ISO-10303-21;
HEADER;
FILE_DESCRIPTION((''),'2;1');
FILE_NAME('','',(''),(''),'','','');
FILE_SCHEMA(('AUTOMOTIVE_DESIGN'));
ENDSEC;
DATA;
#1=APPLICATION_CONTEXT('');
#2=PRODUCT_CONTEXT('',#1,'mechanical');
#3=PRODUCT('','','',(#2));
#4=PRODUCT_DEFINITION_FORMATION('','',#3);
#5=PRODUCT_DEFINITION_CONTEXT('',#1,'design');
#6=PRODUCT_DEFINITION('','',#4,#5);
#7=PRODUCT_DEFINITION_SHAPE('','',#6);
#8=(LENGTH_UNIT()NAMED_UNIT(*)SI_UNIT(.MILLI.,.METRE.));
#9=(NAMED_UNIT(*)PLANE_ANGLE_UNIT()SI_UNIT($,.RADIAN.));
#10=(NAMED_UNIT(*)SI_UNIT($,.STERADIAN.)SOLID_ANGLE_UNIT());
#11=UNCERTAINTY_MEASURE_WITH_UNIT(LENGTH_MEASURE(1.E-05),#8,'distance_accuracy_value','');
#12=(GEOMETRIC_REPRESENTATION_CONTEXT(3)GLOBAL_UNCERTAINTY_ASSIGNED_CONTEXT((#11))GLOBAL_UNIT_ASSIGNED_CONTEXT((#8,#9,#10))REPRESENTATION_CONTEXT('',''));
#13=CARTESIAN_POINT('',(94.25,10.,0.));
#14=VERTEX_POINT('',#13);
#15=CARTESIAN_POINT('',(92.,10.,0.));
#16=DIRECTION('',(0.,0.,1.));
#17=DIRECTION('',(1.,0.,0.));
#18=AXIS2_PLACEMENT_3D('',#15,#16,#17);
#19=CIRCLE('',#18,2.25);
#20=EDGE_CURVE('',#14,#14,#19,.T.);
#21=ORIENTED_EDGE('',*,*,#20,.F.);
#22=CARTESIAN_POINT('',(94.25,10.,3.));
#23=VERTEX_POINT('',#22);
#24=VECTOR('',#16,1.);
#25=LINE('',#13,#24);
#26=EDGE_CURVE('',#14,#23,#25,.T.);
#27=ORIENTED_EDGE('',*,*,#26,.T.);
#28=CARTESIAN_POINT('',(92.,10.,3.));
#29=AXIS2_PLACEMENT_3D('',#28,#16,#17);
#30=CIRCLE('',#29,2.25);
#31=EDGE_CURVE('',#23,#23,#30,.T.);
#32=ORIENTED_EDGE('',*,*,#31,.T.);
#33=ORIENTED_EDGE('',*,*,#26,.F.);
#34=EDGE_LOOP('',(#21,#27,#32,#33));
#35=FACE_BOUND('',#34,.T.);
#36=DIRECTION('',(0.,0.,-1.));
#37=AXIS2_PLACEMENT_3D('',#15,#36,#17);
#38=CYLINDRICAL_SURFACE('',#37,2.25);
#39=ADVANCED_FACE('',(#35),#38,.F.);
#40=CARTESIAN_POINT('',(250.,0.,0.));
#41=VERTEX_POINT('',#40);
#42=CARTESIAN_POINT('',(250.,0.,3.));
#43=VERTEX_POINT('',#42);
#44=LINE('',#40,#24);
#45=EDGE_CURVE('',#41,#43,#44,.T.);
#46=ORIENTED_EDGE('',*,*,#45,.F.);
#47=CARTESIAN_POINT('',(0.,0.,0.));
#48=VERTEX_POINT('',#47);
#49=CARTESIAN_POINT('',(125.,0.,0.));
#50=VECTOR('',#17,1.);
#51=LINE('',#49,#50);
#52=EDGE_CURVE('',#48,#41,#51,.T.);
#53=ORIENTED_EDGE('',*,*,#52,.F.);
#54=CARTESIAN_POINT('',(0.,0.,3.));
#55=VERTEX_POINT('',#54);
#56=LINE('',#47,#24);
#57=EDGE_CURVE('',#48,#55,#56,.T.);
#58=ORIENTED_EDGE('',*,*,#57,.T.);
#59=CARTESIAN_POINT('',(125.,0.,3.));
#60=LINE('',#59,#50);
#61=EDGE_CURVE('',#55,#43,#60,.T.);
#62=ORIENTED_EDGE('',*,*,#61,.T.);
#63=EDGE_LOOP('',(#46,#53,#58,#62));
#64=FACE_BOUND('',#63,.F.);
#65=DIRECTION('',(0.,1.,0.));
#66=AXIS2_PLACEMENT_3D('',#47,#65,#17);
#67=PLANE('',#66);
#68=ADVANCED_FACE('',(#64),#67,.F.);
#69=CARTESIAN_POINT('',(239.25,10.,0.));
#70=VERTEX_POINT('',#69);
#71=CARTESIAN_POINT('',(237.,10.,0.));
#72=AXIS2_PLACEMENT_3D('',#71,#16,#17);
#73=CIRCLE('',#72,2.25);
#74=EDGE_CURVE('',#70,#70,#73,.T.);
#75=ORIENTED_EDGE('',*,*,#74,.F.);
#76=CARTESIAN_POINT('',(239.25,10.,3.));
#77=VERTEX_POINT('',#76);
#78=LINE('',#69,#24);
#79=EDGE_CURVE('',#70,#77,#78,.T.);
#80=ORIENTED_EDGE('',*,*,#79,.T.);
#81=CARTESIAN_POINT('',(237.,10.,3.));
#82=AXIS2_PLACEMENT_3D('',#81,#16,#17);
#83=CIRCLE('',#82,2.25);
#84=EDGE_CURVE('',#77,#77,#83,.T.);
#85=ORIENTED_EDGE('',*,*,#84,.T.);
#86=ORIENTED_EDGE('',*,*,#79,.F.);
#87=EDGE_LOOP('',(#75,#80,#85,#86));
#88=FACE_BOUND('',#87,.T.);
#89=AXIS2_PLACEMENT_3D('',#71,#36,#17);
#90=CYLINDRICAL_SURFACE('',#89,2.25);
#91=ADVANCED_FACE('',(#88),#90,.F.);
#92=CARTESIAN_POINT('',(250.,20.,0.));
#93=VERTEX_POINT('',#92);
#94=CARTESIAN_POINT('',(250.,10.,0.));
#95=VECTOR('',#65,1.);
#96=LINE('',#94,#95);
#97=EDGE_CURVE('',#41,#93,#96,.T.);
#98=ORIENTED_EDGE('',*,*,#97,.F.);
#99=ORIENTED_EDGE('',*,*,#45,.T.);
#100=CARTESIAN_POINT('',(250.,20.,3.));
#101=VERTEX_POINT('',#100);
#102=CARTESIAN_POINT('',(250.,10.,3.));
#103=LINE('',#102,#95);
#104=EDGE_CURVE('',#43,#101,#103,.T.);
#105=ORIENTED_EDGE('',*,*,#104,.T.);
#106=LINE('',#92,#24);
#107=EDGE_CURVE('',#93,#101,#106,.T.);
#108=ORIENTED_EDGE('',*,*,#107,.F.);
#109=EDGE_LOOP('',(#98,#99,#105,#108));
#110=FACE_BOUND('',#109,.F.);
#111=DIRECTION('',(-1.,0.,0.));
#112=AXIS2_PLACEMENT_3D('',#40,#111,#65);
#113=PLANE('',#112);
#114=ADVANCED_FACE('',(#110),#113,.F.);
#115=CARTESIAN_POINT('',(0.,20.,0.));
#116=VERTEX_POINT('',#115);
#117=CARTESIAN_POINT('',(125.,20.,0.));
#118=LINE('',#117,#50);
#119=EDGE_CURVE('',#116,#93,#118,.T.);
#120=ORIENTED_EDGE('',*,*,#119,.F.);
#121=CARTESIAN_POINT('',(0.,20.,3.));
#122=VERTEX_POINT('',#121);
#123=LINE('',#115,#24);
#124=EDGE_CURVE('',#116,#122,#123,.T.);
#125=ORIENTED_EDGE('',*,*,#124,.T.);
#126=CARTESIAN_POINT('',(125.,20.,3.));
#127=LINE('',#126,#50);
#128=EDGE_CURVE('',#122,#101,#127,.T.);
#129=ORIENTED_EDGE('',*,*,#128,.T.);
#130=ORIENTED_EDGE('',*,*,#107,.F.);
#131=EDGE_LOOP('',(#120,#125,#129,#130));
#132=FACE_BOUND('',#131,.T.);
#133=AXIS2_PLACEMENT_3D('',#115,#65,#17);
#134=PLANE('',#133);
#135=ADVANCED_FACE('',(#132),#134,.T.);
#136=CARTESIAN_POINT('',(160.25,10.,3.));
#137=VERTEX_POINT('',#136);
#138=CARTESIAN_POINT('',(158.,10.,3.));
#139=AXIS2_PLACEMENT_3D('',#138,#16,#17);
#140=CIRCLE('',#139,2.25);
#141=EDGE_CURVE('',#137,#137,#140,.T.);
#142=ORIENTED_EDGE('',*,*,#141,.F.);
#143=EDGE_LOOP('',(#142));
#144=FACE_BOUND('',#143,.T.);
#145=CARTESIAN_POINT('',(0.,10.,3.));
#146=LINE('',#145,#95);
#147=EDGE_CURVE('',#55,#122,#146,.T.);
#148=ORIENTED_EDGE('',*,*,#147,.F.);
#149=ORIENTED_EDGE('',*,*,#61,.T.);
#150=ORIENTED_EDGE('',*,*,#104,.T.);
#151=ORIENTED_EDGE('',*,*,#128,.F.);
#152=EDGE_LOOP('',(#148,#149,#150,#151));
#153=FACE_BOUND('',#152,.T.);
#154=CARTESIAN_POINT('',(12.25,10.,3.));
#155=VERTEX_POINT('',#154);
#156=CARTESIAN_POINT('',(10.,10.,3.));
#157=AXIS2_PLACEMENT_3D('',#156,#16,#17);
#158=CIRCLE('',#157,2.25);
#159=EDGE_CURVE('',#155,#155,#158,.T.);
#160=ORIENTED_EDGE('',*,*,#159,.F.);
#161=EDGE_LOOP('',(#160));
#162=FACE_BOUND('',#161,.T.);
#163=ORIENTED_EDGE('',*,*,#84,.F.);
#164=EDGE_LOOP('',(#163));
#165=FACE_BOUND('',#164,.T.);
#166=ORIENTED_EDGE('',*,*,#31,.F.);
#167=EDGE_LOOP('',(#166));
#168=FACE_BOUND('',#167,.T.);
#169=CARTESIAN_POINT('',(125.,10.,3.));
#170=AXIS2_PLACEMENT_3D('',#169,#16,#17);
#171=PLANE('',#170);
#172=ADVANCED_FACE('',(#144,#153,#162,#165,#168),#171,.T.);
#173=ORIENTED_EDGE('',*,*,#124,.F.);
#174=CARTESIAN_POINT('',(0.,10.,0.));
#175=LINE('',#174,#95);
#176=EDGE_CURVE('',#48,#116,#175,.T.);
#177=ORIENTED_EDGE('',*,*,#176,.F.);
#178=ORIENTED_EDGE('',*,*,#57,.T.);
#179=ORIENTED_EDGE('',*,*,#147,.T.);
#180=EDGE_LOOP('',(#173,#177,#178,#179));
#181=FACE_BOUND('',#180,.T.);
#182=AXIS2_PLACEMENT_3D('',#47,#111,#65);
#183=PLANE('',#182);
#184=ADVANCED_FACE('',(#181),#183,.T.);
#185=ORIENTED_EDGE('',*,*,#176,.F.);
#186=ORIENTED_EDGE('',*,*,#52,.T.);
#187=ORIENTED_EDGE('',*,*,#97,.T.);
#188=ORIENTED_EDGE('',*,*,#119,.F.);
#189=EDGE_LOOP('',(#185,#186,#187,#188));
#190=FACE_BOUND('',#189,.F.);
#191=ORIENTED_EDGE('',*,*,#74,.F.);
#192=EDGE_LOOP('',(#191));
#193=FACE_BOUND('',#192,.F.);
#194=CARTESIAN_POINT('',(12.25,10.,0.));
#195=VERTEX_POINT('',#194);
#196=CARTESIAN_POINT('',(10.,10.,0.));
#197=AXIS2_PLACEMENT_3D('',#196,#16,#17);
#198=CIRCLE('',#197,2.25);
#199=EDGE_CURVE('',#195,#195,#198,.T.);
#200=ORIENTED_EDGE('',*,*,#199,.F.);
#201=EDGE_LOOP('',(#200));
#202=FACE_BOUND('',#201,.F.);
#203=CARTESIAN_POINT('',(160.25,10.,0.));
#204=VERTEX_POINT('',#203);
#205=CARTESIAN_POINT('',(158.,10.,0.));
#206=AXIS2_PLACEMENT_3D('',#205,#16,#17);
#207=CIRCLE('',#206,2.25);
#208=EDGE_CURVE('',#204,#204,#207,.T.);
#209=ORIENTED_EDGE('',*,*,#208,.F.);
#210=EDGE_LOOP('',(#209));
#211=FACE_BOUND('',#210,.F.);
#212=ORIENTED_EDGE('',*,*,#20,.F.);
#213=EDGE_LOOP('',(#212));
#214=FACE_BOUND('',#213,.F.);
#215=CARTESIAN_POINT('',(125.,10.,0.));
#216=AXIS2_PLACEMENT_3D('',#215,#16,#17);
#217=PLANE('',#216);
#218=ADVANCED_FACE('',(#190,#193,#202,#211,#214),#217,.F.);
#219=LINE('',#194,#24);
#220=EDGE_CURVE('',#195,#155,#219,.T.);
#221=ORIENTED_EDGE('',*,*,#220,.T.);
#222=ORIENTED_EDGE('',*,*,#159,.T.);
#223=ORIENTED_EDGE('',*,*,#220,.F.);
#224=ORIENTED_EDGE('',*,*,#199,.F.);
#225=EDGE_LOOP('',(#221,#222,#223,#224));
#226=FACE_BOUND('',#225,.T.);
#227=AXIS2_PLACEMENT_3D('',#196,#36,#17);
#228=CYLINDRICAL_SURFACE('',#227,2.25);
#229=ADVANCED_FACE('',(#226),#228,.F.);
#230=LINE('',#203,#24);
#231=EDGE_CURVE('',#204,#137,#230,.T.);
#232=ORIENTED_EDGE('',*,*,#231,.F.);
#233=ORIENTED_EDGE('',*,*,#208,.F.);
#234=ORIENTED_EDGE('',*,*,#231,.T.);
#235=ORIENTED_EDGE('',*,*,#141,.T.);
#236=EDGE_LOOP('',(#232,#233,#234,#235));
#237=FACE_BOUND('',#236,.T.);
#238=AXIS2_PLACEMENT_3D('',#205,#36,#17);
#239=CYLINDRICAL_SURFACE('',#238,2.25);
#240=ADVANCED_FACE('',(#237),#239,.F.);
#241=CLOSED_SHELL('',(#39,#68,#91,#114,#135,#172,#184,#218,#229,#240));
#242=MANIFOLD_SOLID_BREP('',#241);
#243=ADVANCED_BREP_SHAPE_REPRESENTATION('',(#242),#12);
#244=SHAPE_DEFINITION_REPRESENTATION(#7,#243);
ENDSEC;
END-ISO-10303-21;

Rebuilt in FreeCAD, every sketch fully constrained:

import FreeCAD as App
import Part
import Sketcher

V = App.Vector

doc = App.newDocument("Part")
params = doc.addObject("Spreadsheet::Sheet", "Params")
for row, (alias, value) in enumerate([
    ("sketch1_width", "250 mm"),
    ("sketch1_height", "20 mm"),
    ("pad1_length", "3 mm"),
    ("sketch2_diameter", "4.5 mm"),
    ("pocket1_length", "3 mm"),
    ("sketch3_diameter", "4.5 mm"),
    ("pocket2_length", "3 mm"),
    ("sketch4_diameter", "4.5 mm"),
    ("pocket3_length", "3 mm"),
    ("sketch5_diameter", "4.5 mm"),
    ("pocket4_length", "3 mm"),
], start=1):
    params.set(f"A{row}", alias)
    params.set(f"B{row}", "=" + value)
    params.setAlias(f"B{row}", alias)

body = doc.addObject("PartDesign::Body", "Body")

sketch1 = doc.addObject("Sketcher::SketchObject", "Sketch")
body.addObject(sketch1)
sketch1.AttachmentSupport = (doc.XY_Plane, [""])
sketch1.MapMode = "FlatFace"
sketch1.addGeometry(Part.LineSegment(V(0, 20, 0), V(0, 0, 0)), False)
sketch1.addGeometry(Part.LineSegment(V(0, 0, 0), V(250, 0, 0)), False)
sketch1.addGeometry(Part.LineSegment(V(250, 0, 0), V(250, 20, 0)), False)
sketch1.addGeometry(Part.LineSegment(V(250, 20, 0), V(0, 20, 0)), False)
sketch1.addConstraint(Sketcher.Constraint("Coincident", 0, 2, 1, 1))
sketch1.addConstraint(Sketcher.Constraint("Coincident", 1, 2, 2, 1))
sketch1.addConstraint(Sketcher.Constraint("Coincident", 2, 2, 3, 1))
sketch1.addConstraint(Sketcher.Constraint("Coincident", 3, 2, 0, 1))
sketch1.addConstraint(Sketcher.Constraint("Vertical", 0))
sketch1.addConstraint(Sketcher.Constraint("Horizontal", 1))
sketch1.addConstraint(Sketcher.Constraint("Vertical", 2))
sketch1.addConstraint(Sketcher.Constraint("Horizontal", 3))
sketch1.addConstraint(Sketcher.Constraint("Coincident", 0, 2, -1, 1))
sketch1.addConstraint(Sketcher.Constraint("DistanceX", 1, 1, 1, 2, 250.0))
sketch1.addConstraint(Sketcher.Constraint("DistanceY", 0, 2, 0, 1, 20.0))
sketch1.setExpression("Constraints[9]", "Params.sketch1_width")
sketch1.setExpression("Constraints[10]", "Params.sketch1_height")
pad1 = doc.addObject("PartDesign::Pad", "Pad")
body.addObject(pad1)
pad1.Profile = sketch1
pad1.setExpression("Length", "Params.pad1_length")

sketch2 = doc.addObject("Sketcher::SketchObject", "Sketch001")
body.addObject(sketch2)
sketch2.AttachmentSupport = (doc.XY_Plane, [""])
sketch2.MapMode = "FlatFace"
sketch2.addGeometry(Part.Circle(V(10, 10, 0), V(0, 0, 1), 2.2), False)
sketch2.addConstraint(Sketcher.Constraint("Diameter", 0, 4.5))
sketch2.addConstraint(Sketcher.Constraint("DistanceX", -1, 1, 0, 3, 10.0))
sketch2.addConstraint(Sketcher.Constraint("DistanceY", -1, 1, 0, 3, 10.0))
sketch2.setExpression("Constraints[0]", "Params.sketch2_diameter")
pocket1 = doc.addObject("PartDesign::Pocket", "Pocket")
body.addObject(pocket1)
pocket1.Profile = sketch2
pocket1.setExpression("Length", "Params.pocket1_length")
pocket1.Reversed = True

sketch3 = doc.addObject("Sketcher::SketchObject", "Sketch002")
body.addObject(sketch3)
sketch3.AttachmentSupport = (doc.XY_Plane, [""])
sketch3.MapMode = "FlatFace"
sketch3.addGeometry(Part.Circle(V(237, 10, 0), V(0, 0, 1), 2.2), False)
sketch3.addConstraint(Sketcher.Constraint("Diameter", 0, 4.5))
sketch3.addConstraint(Sketcher.Constraint("DistanceX", -1, 1, 0, 3, 237.0))
sketch3.addConstraint(Sketcher.Constraint("DistanceY", -1, 1, 0, 3, 10.0))
sketch3.setExpression("Constraints[0]", "Params.sketch3_diameter")
pocket2 = doc.addObject("PartDesign::Pocket", "Pocket001")
body.addObject(pocket2)
pocket2.Profile = sketch3
pocket2.setExpression("Length", "Params.pocket2_length")
pocket2.Reversed = True

sketch4 = doc.addObject("Sketcher::SketchObject", "Sketch003")
body.addObject(sketch4)
sketch4.AttachmentSupport = (doc.XY_Plane, [""])
sketch4.MapMode = "FlatFace"
sketch4.addGeometry(Part.Circle(V(92, 10, 0), V(0, 0, 1), 2.2), False)
sketch4.addConstraint(Sketcher.Constraint("Diameter", 0, 4.5))
sketch4.addConstraint(Sketcher.Constraint("DistanceX", -1, 1, 0, 3, 92.0))
sketch4.addConstraint(Sketcher.Constraint("DistanceY", -1, 1, 0, 3, 10.0))
sketch4.setExpression("Constraints[0]", "Params.sketch4_diameter")
pocket3 = doc.addObject("PartDesign::Pocket", "Pocket002")
body.addObject(pocket3)
pocket3.Profile = sketch4
pocket3.setExpression("Length", "Params.pocket3_length")
pocket3.Reversed = True

sketch5 = doc.addObject("Sketcher::SketchObject", "Sketch004")
body.addObject(sketch5)
sketch5.AttachmentSupport = (doc.XY_Plane, [""])
sketch5.MapMode = "FlatFace"
sketch5.addGeometry(Part.Circle(V(158, 10, 0), V(0, 0, 1), 2.2), False)
sketch5.addConstraint(Sketcher.Constraint("Diameter", 0, 4.5))
sketch5.addConstraint(Sketcher.Constraint("DistanceX", -1, 1, 0, 3, 158.0))
sketch5.addConstraint(Sketcher.Constraint("DistanceY", -1, 1, 0, 3, 10.0))
sketch5.setExpression("Constraints[0]", "Params.sketch5_diameter")
pocket4 = doc.addObject("PartDesign::Pocket", "Pocket003")
body.addObject(pocket4)
pocket4.Profile = sketch5
pocket4.setExpression("Length", "Params.pocket4_length")
pocket4.Reversed = True

doc.recompute()
